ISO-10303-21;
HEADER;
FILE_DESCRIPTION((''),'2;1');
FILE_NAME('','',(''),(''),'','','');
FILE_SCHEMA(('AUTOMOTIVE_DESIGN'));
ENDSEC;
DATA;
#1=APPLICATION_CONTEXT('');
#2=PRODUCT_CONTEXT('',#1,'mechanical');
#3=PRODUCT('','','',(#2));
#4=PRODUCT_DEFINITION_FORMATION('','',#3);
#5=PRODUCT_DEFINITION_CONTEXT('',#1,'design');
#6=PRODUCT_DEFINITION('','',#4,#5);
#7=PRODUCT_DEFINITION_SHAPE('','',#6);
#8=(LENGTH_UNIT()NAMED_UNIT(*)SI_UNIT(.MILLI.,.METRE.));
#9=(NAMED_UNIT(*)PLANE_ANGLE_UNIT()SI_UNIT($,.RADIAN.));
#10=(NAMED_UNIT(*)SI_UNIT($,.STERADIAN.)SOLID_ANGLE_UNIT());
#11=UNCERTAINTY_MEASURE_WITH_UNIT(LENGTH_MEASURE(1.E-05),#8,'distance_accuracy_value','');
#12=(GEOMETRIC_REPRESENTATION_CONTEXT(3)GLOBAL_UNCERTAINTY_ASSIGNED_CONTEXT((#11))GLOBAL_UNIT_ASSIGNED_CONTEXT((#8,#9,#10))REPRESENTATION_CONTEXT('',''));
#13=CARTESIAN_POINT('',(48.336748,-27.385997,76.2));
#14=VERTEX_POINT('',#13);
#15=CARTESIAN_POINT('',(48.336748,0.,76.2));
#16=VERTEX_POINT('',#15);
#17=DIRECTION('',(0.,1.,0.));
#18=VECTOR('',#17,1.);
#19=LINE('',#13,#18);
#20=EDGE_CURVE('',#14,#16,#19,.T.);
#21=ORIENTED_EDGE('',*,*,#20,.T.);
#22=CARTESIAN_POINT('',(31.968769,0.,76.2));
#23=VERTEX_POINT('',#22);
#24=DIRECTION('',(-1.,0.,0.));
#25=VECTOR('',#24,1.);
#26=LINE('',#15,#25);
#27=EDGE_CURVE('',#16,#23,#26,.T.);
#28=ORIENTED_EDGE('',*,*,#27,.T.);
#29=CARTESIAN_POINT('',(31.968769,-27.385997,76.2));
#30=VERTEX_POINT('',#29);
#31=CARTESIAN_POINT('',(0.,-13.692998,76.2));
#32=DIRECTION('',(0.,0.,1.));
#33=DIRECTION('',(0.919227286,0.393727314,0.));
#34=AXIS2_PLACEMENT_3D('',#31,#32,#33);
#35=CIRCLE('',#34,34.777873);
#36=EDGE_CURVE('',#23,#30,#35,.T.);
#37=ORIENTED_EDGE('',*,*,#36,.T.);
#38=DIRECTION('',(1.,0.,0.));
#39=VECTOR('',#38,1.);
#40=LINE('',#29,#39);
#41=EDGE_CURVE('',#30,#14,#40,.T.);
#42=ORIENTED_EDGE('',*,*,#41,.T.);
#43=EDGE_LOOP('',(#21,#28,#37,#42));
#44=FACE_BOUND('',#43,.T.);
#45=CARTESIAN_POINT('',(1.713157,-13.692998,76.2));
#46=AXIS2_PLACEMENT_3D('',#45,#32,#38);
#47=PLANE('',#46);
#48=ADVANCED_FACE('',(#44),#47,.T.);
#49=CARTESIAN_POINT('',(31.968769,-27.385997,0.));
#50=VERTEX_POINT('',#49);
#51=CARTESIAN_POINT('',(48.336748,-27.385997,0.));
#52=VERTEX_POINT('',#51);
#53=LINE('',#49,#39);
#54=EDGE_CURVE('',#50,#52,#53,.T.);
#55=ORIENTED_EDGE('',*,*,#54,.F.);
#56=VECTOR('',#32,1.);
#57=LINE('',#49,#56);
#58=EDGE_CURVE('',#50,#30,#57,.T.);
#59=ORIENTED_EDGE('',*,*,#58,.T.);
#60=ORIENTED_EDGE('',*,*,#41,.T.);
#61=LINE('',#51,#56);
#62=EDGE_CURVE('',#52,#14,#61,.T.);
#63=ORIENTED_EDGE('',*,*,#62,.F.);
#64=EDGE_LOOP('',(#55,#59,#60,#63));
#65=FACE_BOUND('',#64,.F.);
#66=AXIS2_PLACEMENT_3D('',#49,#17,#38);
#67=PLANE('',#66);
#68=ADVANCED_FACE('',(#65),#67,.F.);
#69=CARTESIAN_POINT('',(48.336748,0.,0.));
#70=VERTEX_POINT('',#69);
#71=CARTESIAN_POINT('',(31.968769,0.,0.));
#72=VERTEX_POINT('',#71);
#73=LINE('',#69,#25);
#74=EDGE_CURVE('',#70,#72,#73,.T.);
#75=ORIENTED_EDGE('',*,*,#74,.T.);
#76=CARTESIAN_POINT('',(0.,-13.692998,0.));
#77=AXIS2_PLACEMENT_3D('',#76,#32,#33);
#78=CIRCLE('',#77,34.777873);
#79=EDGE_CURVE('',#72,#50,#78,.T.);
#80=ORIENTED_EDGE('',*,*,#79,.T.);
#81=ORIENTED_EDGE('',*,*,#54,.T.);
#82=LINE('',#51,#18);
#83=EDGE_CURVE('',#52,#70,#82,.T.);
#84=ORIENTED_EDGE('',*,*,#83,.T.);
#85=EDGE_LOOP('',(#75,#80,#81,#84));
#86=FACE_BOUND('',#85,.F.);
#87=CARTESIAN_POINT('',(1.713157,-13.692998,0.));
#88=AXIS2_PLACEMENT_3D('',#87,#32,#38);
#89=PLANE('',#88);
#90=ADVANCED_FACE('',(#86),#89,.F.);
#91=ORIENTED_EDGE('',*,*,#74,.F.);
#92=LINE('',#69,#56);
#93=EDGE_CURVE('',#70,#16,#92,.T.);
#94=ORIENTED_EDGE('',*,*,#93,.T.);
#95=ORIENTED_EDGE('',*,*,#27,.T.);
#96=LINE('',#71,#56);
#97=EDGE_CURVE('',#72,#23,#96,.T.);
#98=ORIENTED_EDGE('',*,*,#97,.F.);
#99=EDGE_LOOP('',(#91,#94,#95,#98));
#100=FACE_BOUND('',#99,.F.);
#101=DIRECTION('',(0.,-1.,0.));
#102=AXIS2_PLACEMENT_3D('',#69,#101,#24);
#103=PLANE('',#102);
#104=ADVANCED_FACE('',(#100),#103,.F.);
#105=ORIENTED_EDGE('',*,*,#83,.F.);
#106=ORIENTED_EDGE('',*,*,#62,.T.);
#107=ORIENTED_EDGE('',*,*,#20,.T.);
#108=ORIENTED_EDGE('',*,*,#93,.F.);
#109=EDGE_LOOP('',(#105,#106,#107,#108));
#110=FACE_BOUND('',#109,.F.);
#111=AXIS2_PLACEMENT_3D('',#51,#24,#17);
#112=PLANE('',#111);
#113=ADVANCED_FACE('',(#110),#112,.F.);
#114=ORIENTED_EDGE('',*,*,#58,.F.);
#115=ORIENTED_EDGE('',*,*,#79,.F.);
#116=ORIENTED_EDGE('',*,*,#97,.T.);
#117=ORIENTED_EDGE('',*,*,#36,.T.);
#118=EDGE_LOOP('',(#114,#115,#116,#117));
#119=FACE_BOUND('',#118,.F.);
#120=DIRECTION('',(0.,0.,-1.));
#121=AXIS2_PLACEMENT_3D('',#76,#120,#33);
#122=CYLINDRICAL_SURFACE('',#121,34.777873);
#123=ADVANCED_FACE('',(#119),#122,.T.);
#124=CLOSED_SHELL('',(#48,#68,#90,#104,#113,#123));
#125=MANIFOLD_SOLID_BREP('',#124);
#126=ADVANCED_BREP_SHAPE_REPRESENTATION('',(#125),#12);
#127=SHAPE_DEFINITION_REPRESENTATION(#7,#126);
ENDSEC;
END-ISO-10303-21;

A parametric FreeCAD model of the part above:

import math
import FreeCAD as App
import Part
import Sketcher
from FreeCAD import Vector
Q = App.Units.Quantity

doc = App.newDocument("Part")
body = doc.addObject("PartDesign::Body", "Body")

sketch1 = doc.addObject("Sketcher::SketchObject", "Sketch")
body.addObject(sketch1)
sketch1.AttachmentSupport = (doc.XY_Plane, [""])
sketch1.MapMode = "FlatFace"
sketch1.addGeometry([
    Part.ArcOfCircle(Part.Circle(Vector(0, -14, 0), Vector(0, 0, 1), 35), math.radians(23), math.radians(337)),
    Part.LineSegment(Vector(32, -27, 0), Vector(48, -27, 0)),
    Part.LineSegment(Vector(48, -27, 0), Vector(48, 0, 0)),
    Part.LineSegment(Vector(48, 0, 0), Vector(32, 0, 0)),
], False)
sketch1.addConstraint([
    Sketcher.Constraint("Coincident", 0, 2, 1, 1),
    Sketcher.Constraint("Coincident", 1, 2, 2, 1),
    Sketcher.Constraint("Coincident", 2, 2, 3, 1),
    Sketcher.Constraint("Coincident", 3, 2, 0, 1),
    Sketcher.Constraint("Horizontal", 1),
    Sketcher.Constraint("Vertical", 2),
    Sketcher.Constraint("Horizontal", 3),
    Sketcher.Constraint("PointOnObject", 0, 3, -2),
    Sketcher.Constraint("PointOnObject", 2, 2, -1),
    Sketcher.Constraint("Vertical", 0, 2, 3, 2),
    Sketcher.Constraint("Radius", 0, Q("34.777873 mm")),
    Sketcher.Constraint("DistanceX", 1, 1, 1, 2, Q("16.367979 mm")),
    Sketcher.Constraint("DistanceY", 0, 3, -1, 1, Q("13.692998 mm")),
])
pad1 = doc.addObject("PartDesign::Pad", "Pad")
body.addObject(pad1)
pad1.Profile = sketch1
pad1.Length = Q("3 in")

sketch2 = doc.addObject("Sketcher::SketchObject", "Sketch001")
body.addObject(sketch2)
sketch2.AttachmentSupport = (doc.XY_Plane, [""])
sketch2.MapMode = "FlatFace"
sketch2.AttachmentOffset = App.Placement(Vector(0, 0, 3 * 25.4), App.Rotation())
sketch2.addGeometry([
    Part.LineSegment(Vector(39, -18, 0), Vector(39, -9, 0)),
    Part.LineSegment(Vector(39, -9, 0), Vector(25, -9, 0)),
    Part.ArcOfCircle(Part.Circle(Vector(0, -14, 0), Vector(0, 0, 1), 25), math.radians(10), math.radians(350)),
    Part.LineSegment(Vector(25, -18, 0), Vector(39, -18, 0)),
], False)
sketch2.addConstraint([
    Sketcher.Constraint("Coincident", 0, 2, 1, 1),
    Sketcher.Constraint("Coincident", 1, 2, 2, 1),
    Sketcher.Constraint("Coincident", 2, 2, 3, 1),
    Sketcher.Constraint("Coincident", 3, 2, 0, 1),
    Sketcher.Constraint("Vertical", 0),
    Sketcher.Constraint("Horizontal", 1),
    Sketcher.Constraint("Horizontal", 3),
    Sketcher.Constraint("PointOnObject", 2, 3, -2),
    Sketcher.Constraint("Vertical", 1, 2, 2, 2),
    Sketcher.Constraint("DistanceY", 0, 2, -1, 1, Q("0.37 in")),
    Sketcher.Constraint("Radius", 2, Q("25.379872 mm")),
    Sketcher.Constraint("DistanceY", 2, 3, -1, 1, Q("13.692998 mm")),
    Sketcher.Constraint("DistanceX", 1, 2, 1, 1, Q("13.924933 mm")),
])
pad2 = doc.addObject("PartDesign::Pad", "Pad001")
body.addObject(pad2)
pad2.Profile = sketch2
pad2.Length = Q("1 in")
pad2.Reversed = True

doc.recompute()
